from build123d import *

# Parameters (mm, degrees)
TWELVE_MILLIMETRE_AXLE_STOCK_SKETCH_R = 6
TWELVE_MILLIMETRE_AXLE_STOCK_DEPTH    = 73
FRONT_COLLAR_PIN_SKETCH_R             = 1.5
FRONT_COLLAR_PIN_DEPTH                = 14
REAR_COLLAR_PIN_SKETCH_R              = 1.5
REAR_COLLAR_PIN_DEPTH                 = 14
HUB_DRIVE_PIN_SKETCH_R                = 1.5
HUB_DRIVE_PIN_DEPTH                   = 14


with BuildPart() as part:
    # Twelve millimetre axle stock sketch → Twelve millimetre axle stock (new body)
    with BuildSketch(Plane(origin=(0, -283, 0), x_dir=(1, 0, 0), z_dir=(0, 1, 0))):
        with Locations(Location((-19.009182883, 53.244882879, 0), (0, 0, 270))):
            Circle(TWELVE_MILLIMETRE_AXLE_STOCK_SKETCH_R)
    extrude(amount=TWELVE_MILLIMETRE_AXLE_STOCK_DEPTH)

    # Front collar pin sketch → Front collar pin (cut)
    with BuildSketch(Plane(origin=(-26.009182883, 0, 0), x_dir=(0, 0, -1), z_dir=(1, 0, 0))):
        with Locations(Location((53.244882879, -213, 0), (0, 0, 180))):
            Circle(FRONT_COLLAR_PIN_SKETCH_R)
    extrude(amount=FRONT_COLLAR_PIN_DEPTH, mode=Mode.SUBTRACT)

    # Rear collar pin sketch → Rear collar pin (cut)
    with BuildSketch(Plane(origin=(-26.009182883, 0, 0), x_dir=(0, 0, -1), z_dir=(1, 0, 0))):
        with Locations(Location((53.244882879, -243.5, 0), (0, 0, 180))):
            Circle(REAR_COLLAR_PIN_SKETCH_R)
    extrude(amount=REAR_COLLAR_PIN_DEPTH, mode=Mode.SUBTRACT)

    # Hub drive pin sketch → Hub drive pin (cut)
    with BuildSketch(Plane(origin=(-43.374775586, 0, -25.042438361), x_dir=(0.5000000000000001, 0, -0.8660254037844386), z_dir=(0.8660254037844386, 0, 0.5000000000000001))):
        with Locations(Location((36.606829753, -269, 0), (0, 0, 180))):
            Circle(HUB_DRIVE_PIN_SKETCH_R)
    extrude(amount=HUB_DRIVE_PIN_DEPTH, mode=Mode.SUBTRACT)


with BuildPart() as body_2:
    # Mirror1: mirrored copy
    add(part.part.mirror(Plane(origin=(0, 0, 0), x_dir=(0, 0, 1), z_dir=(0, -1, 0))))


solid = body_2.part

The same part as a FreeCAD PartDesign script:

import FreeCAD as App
import Part
import Sketcher

V = App.Vector

doc = App.newDocument("Part")
body = doc.addObject("PartDesign::Body", "Body")

sketch1 = doc.addObject("Sketcher::SketchObject", "Sketch")
body.addObject(sketch1)
sketch1.AttachmentSupport = (doc.XZ_Plane, [""])
sketch1.MapMode = "FlatFace"
sketch1.AttachmentOffset = App.Placement(V(0, 0, 283), App.Rotation())
sketch1.addGeometry(Part.Circle(V(-19, -53, 0), V(0, 0, 1), 6), False)
sketch1.addConstraint([
    Sketcher.Constraint("Diameter", 0, 12.0),
    Sketcher.Constraint("DistanceX", 0, 3, -1, 1, 19.009183),
    Sketcher.Constraint("DistanceY", 0, 3, -1, 1, 53.244883),
])
pad1 = doc.addObject("PartDesign::Pad", "Pad")
body.addObject(pad1)
pad1.Profile = sketch1
pad1.Length = 73
pad1.Reversed = True

sketch2 = doc.addObject("Sketcher::SketchObject", "Sketch001")
body.addObject(sketch2)
sketch2.AttachmentSupport = (doc.YZ_Plane, [""])
sketch2.MapMode = "FlatFace"
sketch2.AttachmentOffset = App.Placement(V(0, 0, -26.009183), App.Rotation())
sketch2.addGeometry(Part.Circle(V(-213, -53.2, 0), V(0, 0, 1), 1.5), False)
sketch2.addConstraint([
    Sketcher.Constraint("Diameter", 0, 3.0),
    Sketcher.Constraint("DistanceX", 0, 3, -1, 1, 213.0),
    Sketcher.Constraint("DistanceY", 0, 3, -1, 1, 53.244883),
])
pocket1 = doc.addObject("PartDesign::Pocket", "Pocket")
body.addObject(pocket1)
pocket1.Profile = sketch2
pocket1.Length = 14
pocket1.Reversed = True

sketch3 = doc.addObject("Sketcher::SketchObject", "Sketch002")
body.addObject(sketch3)
sketch3.AttachmentSupport = (doc.YZ_Plane, [""])
sketch3.MapMode = "FlatFace"
sketch3.AttachmentOffset = App.Placement(V(0, 0, -26.009183), App.Rotation())
sketch3.addGeometry(Part.Circle(V(-243.5, -53.2, 0), V(0, 0, 1), 1.5), False)
sketch3.addConstraint([
    Sketcher.Constraint("Diameter", 0, 3.0),
    Sketcher.Constraint("DistanceX", 0, 3, -1, 1, 243.5),
    Sketcher.Constraint("DistanceY", 0, 3, -1, 1, 53.244883),
])
pocket2 = doc.addObject("PartDesign::Pocket", "Pocket001")
body.addObject(pocket2)
pocket2.Profile = sketch3
pocket2.Length = 14
pocket2.Reversed = True

sketch4 = doc.addObject("Sketcher::SketchObject", "Sketch003")
body.addObject(sketch4)
sketch4.Placement = App.Placement(V(-43.374776, 0, -25.042438), App.Rotation(V(0.5, 0, -0.866025404), V(0, 1, 0), V(0.866025404, 0, 0.5), "ZXY"))
sketch4.addGeometry(Part.Circle(V(36.6, -269, 0), V(0, 0, 1), 1.5), False)
sketch4.addConstraint([
    Sketcher.Constraint("Diameter", 0, 3.0),
    Sketcher.Constraint("DistanceY", 0, 3, -1, 1, 269.0),
    Sketcher.Constraint("DistanceX", -1, 1, 0, 3, 36.60683),
])
pocket3 = doc.addObject("PartDesign::Pocket", "Pocket002")
body.addObject(pocket3)
pocket3.Profile = sketch4
pocket3.Length = 14
pocket3.Reversed = True
body2 = doc.addObject("PartDesign::Body", "Body001")
doc.recompute()

mirroring = doc.addObject("Part::Mirroring", "Mirroring")
mirroring.Source = body
mirroring.Base = V(0, 0, 0)
mirroring.Normal = V(0, -1, 0)
body2.BaseFeature = mirroring
doc.recompute()
body.Visibility = False
mirroring.Visibility = False

doc.recompute()
